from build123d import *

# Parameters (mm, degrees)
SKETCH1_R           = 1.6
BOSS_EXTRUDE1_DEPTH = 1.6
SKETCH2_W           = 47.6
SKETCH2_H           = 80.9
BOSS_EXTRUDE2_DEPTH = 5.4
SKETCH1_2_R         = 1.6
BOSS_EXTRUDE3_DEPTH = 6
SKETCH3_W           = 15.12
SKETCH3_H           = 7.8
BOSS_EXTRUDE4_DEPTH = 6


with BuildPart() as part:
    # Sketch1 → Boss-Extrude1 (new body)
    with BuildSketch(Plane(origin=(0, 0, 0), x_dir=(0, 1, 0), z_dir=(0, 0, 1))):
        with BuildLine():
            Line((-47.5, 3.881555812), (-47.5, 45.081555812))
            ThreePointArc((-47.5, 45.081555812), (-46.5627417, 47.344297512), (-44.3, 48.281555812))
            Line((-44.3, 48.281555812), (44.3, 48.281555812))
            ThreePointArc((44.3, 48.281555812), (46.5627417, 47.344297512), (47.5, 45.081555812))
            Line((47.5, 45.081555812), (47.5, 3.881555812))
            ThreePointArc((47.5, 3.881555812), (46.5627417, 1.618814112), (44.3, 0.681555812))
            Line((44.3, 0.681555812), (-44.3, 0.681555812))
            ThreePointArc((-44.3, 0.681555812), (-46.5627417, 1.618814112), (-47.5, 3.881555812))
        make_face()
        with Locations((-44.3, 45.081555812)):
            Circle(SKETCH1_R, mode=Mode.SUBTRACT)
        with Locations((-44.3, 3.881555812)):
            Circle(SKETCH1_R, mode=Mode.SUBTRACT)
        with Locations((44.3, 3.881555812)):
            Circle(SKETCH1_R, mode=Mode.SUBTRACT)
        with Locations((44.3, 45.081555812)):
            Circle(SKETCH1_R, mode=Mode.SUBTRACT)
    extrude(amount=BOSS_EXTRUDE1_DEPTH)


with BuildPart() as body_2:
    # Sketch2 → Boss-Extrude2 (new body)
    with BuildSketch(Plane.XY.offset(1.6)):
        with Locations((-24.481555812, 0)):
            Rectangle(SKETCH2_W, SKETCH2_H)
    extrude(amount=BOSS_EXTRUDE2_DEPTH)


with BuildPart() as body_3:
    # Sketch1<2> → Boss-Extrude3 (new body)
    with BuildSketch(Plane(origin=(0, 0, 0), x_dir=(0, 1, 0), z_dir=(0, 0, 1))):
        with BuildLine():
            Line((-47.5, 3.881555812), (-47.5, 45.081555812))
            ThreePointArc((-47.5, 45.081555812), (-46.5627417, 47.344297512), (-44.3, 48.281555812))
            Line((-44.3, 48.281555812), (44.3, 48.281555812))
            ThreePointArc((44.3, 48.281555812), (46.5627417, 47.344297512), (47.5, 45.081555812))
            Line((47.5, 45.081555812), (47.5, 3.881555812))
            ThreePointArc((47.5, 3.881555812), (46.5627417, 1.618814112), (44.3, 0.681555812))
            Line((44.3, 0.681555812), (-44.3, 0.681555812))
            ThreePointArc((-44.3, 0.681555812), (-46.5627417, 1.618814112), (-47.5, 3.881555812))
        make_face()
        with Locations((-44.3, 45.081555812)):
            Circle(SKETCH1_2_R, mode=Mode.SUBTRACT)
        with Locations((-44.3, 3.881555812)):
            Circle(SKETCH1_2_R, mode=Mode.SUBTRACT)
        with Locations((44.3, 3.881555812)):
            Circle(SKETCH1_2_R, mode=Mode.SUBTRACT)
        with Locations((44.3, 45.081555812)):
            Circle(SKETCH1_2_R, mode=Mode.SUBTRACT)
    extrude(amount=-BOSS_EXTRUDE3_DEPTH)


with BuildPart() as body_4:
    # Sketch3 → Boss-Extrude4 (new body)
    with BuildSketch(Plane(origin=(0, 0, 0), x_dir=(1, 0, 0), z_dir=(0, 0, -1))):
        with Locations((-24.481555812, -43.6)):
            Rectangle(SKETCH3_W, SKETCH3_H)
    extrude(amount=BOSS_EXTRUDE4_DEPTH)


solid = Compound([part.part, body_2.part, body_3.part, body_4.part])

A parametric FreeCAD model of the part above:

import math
import FreeCAD as App
import Part
import Sketcher
from FreeCAD import Vector
Q = App.Units.Quantity

doc = App.newDocument("Part")
body = doc.addObject("PartDesign::Body", "Body")

# Sketch on XY plane
sketch1 = body.newObject("Sketcher::SketchObject", "Sketch")
sketch1.AttachmentSupport = (doc.getObject("XY_Plane"), [""])
sketch1.MapMode = "FlatFace"
sketch1.addGeometry([
    Part.LineSegment(Vector(-45.1, -47.5, 0), Vector(-3.9, -47.5, 0)),  # 0
    Part.ArcOfCircle(Part.Circle(Vector(-3.9, -44.3, 0), Vector(0, 0, 1), 3.2), math.radians(-90), math.radians(0)),  # 1
    Part.LineSegment(Vector(-0.7, -44.3, 0), Vector(-0.7, 44.3, 0)),  # 2
    Part.ArcOfCircle(Part.Circle(Vector(-3.9, 44.3, 0), Vector(0, 0, 1), 3.2), math.radians(0), math.radians(90)),  # 3
    Part.LineSegment(Vector(-3.9, 47.5, 0), Vector(-45.1, 47.5, 0)),  # 4
    Part.ArcOfCircle(Part.Circle(Vector(-45.1, 44.3, 0), Vector(0, 0, 1), 3.2), math.radians(90), math.radians(180)),  # 5
    Part.LineSegment(Vector(-48.3, 44.3, 0), Vector(-48.3, -44.3, 0)),  # 6
    Part.ArcOfCircle(Part.Circle(Vector(-45.1, -44.3, 0), Vector(0, 0, 1), 3.2), math.radians(180), math.radians(270)),  # 7
    Part.Circle(Vector(-3.9, 44.3, 0), Vector(0, 0, 1), 1.6),  # 8
    Part.Circle(Vector(-3.9, -44.3, 0), Vector(0, 0, 1), 1.6),  # 9
    Part.Circle(Vector(-45.1, 44.3, 0), Vector(0, 0, 1), 1.6),  # 10
    Part.Circle(Vector(-45.1, -44.3, 0), Vector(0, 0, 1), 1.6),  # 11
], False)
sketch1.addConstraint([
    Sketcher.Constraint("Tangent", 0, 2, 1, 1),
    Sketcher.Constraint("Tangent", 1, 2, 2, 1),
    Sketcher.Constraint("Tangent", 2, 2, 3, 1),
    Sketcher.Constraint("Tangent", 3, 2, 4, 1),
    Sketcher.Constraint("Tangent", 4, 2, 5, 1),
    Sketcher.Constraint("Tangent", 5, 2, 6, 1),
    Sketcher.Constraint("Tangent", 6, 2, 7, 1),
    Sketcher.Constraint("Tangent", 7, 2, 0, 1),
    Sketcher.Constraint("Horizontal", 0),
    Sketcher.Constraint("Vertical", 2),
    Sketcher.Constraint("Horizontal", 4),
    Sketcher.Constraint("Vertical", 6),
    Sketcher.Constraint("Coincident", 8, 3, 3, 3),
    Sketcher.Constraint("Coincident", 9, 3, 1, 3),
    Sketcher.Constraint("Coincident", 10, 3, 5, 3),
    Sketcher.Constraint("Coincident", 11, 3, 7, 3),
    Sketcher.Constraint("Equal", 1, 3),
    Sketcher.Constraint("Equal", 3, 5),
    Sketcher.Constraint("Equal", 5, 7),
    Sketcher.Constraint("Equal", 8, 9),
    Sketcher.Constraint("Equal", 9, 10),
    Sketcher.Constraint("Equal", 10, 11),
    Sketcher.Constraint("Diameter", 8, Q("3.2 mm")),
    Sketcher.Constraint("Radius", 1, Q("3.2 mm")),
    Sketcher.Constraint("DistanceX", 0, 1, 0, 2, Q("41.2 mm")),
    Sketcher.Constraint("DistanceY", 2, 1, 2, 2, Q("88.6 mm")),
    Sketcher.Constraint("DistanceY", 1, 3, -1, 1, Q("44.3 mm")),
    Sketcher.Constraint("DistanceX", 1, 3, -1, 1, Q("3.881556 mm")),
])
pad1 = body.newObject("PartDesign::Pad", "Pad")
pad1.Profile = sketch1
pad1.Length = 1.6
body2 = doc.addObject("PartDesign::Body", "Body001")

# Sketch on XY plane
sketch2 = body2.newObject("Sketcher::SketchObject", "Sketch001")
sketch2.AttachmentSupport = (doc.getObject("XY_Plane001"), [""])
sketch2.MapMode = "FlatFace"
sketch2.AttachmentOffset = App.Placement(Vector(0, 0, 1.6), App.Rotation())
sketch2.addGeometry([
    Part.LineSegment(Vector(-48, 40, 0), Vector(-48, -40, 0)),
    Part.LineSegment(Vector(-48, -40, 0), Vector(-1, -40, 0)),
    Part.LineSegment(Vector(-1, -40, 0), Vector(-1, 40, 0)),
    Part.LineSegment(Vector(-1, 40, 0), Vector(-48, 40, 0)),
], False)
sketch2.addConstraint([
    Sketcher.Constraint("Coincident", 0, 2, 1, 1),
    Sketcher.Constraint("Coincident", 1, 2, 2, 1),
    Sketcher.Constraint("Coincident", 2, 2, 3, 1),
    Sketcher.Constraint("Coincident", 3, 2, 0, 1),
    Sketcher.Constraint("Vertical", 0),
    Sketcher.Constraint("Horizontal", 1),
    Sketcher.Constraint("Vertical", 2),
    Sketcher.Constraint("Horizontal", 3),
    Sketcher.Constraint("DistanceX", 1, 1, 1, 2, Q("47.6 mm")),
    Sketcher.Constraint("DistanceY", 0, 2, 0, 1, Q("80.9 mm")),
    Sketcher.Constraint("DistanceY", 0, 2, -1, 1, Q("40.45 mm")),
    Sketcher.Constraint("DistanceX", 0, 2, -1, 1, Q("48.281556 mm")),
])
pad2 = body2.newObject("PartDesign::Pad", "Pad001")
pad2.Profile = sketch2
pad2.Length = 5.4
body3 = doc.addObject("PartDesign::Body", "Body002")

# Sketch on XY plane
sketch3 = body3.newObject("Sketcher::SketchObject", "Sketch002")
sketch3.AttachmentSupport = (doc.getObject("XY_Plane002"), [""])
sketch3.MapMode = "FlatFace"
sketch3.addGeometry([
    Part.LineSegment(Vector(-45.1, -47.5, 0), Vector(-3.9, -47.5, 0)),  # 0
    Part.ArcOfCircle(Part.Circle(Vector(-3.9, -44.3, 0), Vector(0, 0, 1), 3.2), math.radians(-90), math.radians(0)),  # 1
    Part.LineSegment(Vector(-0.7, -44.3, 0), Vector(-0.7, 44.3, 0)),  # 2
    Part.ArcOfCircle(Part.Circle(Vector(-3.9, 44.3, 0), Vector(0, 0, 1), 3.2), math.radians(0), math.radians(90)),  # 3
    Part.LineSegment(Vector(-3.9, 47.5, 0), Vector(-45.1, 47.5, 0)),  # 4
    Part.ArcOfCircle(Part.Circle(Vector(-45.1, 44.3, 0), Vector(0, 0, 1), 3.2), math.radians(90), math.radians(180)),  # 5
    Part.LineSegment(Vector(-48.3, 44.3, 0), Vector(-48.3, -44.3, 0)),  # 6
    Part.ArcOfCircle(Part.Circle(Vector(-45.1, -44.3, 0), Vector(0, 0, 1), 3.2), math.radians(180), math.radians(270)),  # 7
    Part.Circle(Vector(-3.9, 44.3, 0), Vector(0, 0, 1), 1.6),  # 8
    Part.Circle(Vector(-3.9, -44.3, 0), Vector(0, 0, 1), 1.6),  # 9
    Part.Circle(Vector(-45.1, 44.3, 0), Vector(0, 0, 1), 1.6),  # 10
    Part.Circle(Vector(-45.1, -44.3, 0), Vector(0, 0, 1), 1.6),  # 11
], False)
sketch3.addConstraint([
    Sketcher.Constraint("Tangent", 0, 2, 1, 1),
    Sketcher.Constraint("Tangent", 1, 2, 2, 1),
    Sketcher.Constraint("Tangent", 2, 2, 3, 1),
    Sketcher.Constraint("Tangent", 3, 2, 4, 1),
    Sketcher.Constraint("Tangent", 4, 2, 5, 1),
    Sketcher.Constraint("Tangent", 5, 2, 6, 1),
    Sketcher.Constraint("Tangent", 6, 2, 7, 1),
    Sketcher.Constraint("Tangent", 7, 2, 0, 1),
    Sketcher.Constraint("Horizontal", 0),
    Sketcher.Constraint("Vertical", 2),
    Sketcher.Constraint("Horizontal", 4),
    Sketcher.Constraint("Vertical", 6),
    Sketcher.Constraint("Coincident", 8, 3, 3, 3),
    Sketcher.Constraint("Coincident", 9, 3, 1, 3),
    Sketcher.Constraint("Coincident", 10, 3, 5, 3),
    Sketcher.Constraint("Coincident", 11, 3, 7, 3),
    Sketcher.Constraint("Equal", 1, 3),
    Sketcher.Constraint("Equal", 3, 5),
    Sketcher.Constraint("Equal", 5, 7),
    Sketcher.Constraint("Equal", 8, 9),
    Sketcher.Constraint("Equal", 9, 10),
    Sketcher.Constraint("Equal", 10, 11),
    Sketcher.Constraint("Diameter", 8, Q("3.2 mm")),
    Sketcher.Constraint("Radius", 1, Q("3.2 mm")),
    Sketcher.Constraint("DistanceX", 0, 1, 0, 2, Q("41.2 mm")),
    Sketcher.Constraint("DistanceY", 2, 1, 2, 2, Q("88.6 mm")),
    Sketcher.Constraint("DistanceY", 1, 3, -1, 1, Q("44.3 mm")),
    Sketcher.Constraint("DistanceX", 1, 3, -1, 1, Q("3.881556 mm")),
])
pad3 = body3.newObject("PartDesign::Pad", "Pad002")
pad3.Profile = sketch3
pad3.Length = 6
pad3.Reversed = True
body4 = doc.addObject("PartDesign::Body", "Body003")

# Sketch on XY plane
sketch4 = body4.newObject("Sketcher::SketchObject", "Sketch003")
sketch4.AttachmentSupport = (doc.getObject("XY_Plane003"), [""])
sketch4.MapMode = "FlatFace"
sketch4.addGeometry([
    Part.LineSegment(Vector(-32, 40, 0), Vector(-32, 48, 0)),
    Part.LineSegment(Vector(-32, 48, 0), Vector(-17, 48, 0)),
    Part.LineSegment(Vector(-17, 48, 0), Vector(-17, 40, 0)),
    Part.LineSegment(Vector(-17, 40, 0), Vector(-32, 40, 0)),
], False)
sketch4.addConstraint([
    Sketcher.Constraint("Coincident", 0, 2, 1, 1),
    Sketcher.Constraint("Coincident", 1, 2, 2, 1),
    Sketcher.Constraint("Coincident", 2, 2, 3, 1),
    Sketcher.Constraint("Coincident", 3, 2, 0, 1),
    Sketcher.Constraint("Vertical", 0),
    Sketcher.Constraint("Horizontal", 1),
    Sketcher.Constraint("Vertical", 2),
    Sketcher.Constraint("Horizontal", 3),
    Sketcher.Constraint("DistanceY", 0, 1, 0, 2, Q("7.8 mm")),
    Sketcher.Constraint("DistanceX", 1, 1, 1, 2, Q("15.12 mm")),
    Sketcher.Constraint("DistanceY", -1, 1, 0, 2, Q("47.5 mm")),
    Sketcher.Constraint("DistanceX", 0, 2, -1, 1, Q("32.041556 mm")),
])
pad4 = body4.newObject("PartDesign::Pad", "Pad003")
pad4.Profile = sketch4
pad4.Length = 6
pad4.Reversed = True

doc.recompute()
